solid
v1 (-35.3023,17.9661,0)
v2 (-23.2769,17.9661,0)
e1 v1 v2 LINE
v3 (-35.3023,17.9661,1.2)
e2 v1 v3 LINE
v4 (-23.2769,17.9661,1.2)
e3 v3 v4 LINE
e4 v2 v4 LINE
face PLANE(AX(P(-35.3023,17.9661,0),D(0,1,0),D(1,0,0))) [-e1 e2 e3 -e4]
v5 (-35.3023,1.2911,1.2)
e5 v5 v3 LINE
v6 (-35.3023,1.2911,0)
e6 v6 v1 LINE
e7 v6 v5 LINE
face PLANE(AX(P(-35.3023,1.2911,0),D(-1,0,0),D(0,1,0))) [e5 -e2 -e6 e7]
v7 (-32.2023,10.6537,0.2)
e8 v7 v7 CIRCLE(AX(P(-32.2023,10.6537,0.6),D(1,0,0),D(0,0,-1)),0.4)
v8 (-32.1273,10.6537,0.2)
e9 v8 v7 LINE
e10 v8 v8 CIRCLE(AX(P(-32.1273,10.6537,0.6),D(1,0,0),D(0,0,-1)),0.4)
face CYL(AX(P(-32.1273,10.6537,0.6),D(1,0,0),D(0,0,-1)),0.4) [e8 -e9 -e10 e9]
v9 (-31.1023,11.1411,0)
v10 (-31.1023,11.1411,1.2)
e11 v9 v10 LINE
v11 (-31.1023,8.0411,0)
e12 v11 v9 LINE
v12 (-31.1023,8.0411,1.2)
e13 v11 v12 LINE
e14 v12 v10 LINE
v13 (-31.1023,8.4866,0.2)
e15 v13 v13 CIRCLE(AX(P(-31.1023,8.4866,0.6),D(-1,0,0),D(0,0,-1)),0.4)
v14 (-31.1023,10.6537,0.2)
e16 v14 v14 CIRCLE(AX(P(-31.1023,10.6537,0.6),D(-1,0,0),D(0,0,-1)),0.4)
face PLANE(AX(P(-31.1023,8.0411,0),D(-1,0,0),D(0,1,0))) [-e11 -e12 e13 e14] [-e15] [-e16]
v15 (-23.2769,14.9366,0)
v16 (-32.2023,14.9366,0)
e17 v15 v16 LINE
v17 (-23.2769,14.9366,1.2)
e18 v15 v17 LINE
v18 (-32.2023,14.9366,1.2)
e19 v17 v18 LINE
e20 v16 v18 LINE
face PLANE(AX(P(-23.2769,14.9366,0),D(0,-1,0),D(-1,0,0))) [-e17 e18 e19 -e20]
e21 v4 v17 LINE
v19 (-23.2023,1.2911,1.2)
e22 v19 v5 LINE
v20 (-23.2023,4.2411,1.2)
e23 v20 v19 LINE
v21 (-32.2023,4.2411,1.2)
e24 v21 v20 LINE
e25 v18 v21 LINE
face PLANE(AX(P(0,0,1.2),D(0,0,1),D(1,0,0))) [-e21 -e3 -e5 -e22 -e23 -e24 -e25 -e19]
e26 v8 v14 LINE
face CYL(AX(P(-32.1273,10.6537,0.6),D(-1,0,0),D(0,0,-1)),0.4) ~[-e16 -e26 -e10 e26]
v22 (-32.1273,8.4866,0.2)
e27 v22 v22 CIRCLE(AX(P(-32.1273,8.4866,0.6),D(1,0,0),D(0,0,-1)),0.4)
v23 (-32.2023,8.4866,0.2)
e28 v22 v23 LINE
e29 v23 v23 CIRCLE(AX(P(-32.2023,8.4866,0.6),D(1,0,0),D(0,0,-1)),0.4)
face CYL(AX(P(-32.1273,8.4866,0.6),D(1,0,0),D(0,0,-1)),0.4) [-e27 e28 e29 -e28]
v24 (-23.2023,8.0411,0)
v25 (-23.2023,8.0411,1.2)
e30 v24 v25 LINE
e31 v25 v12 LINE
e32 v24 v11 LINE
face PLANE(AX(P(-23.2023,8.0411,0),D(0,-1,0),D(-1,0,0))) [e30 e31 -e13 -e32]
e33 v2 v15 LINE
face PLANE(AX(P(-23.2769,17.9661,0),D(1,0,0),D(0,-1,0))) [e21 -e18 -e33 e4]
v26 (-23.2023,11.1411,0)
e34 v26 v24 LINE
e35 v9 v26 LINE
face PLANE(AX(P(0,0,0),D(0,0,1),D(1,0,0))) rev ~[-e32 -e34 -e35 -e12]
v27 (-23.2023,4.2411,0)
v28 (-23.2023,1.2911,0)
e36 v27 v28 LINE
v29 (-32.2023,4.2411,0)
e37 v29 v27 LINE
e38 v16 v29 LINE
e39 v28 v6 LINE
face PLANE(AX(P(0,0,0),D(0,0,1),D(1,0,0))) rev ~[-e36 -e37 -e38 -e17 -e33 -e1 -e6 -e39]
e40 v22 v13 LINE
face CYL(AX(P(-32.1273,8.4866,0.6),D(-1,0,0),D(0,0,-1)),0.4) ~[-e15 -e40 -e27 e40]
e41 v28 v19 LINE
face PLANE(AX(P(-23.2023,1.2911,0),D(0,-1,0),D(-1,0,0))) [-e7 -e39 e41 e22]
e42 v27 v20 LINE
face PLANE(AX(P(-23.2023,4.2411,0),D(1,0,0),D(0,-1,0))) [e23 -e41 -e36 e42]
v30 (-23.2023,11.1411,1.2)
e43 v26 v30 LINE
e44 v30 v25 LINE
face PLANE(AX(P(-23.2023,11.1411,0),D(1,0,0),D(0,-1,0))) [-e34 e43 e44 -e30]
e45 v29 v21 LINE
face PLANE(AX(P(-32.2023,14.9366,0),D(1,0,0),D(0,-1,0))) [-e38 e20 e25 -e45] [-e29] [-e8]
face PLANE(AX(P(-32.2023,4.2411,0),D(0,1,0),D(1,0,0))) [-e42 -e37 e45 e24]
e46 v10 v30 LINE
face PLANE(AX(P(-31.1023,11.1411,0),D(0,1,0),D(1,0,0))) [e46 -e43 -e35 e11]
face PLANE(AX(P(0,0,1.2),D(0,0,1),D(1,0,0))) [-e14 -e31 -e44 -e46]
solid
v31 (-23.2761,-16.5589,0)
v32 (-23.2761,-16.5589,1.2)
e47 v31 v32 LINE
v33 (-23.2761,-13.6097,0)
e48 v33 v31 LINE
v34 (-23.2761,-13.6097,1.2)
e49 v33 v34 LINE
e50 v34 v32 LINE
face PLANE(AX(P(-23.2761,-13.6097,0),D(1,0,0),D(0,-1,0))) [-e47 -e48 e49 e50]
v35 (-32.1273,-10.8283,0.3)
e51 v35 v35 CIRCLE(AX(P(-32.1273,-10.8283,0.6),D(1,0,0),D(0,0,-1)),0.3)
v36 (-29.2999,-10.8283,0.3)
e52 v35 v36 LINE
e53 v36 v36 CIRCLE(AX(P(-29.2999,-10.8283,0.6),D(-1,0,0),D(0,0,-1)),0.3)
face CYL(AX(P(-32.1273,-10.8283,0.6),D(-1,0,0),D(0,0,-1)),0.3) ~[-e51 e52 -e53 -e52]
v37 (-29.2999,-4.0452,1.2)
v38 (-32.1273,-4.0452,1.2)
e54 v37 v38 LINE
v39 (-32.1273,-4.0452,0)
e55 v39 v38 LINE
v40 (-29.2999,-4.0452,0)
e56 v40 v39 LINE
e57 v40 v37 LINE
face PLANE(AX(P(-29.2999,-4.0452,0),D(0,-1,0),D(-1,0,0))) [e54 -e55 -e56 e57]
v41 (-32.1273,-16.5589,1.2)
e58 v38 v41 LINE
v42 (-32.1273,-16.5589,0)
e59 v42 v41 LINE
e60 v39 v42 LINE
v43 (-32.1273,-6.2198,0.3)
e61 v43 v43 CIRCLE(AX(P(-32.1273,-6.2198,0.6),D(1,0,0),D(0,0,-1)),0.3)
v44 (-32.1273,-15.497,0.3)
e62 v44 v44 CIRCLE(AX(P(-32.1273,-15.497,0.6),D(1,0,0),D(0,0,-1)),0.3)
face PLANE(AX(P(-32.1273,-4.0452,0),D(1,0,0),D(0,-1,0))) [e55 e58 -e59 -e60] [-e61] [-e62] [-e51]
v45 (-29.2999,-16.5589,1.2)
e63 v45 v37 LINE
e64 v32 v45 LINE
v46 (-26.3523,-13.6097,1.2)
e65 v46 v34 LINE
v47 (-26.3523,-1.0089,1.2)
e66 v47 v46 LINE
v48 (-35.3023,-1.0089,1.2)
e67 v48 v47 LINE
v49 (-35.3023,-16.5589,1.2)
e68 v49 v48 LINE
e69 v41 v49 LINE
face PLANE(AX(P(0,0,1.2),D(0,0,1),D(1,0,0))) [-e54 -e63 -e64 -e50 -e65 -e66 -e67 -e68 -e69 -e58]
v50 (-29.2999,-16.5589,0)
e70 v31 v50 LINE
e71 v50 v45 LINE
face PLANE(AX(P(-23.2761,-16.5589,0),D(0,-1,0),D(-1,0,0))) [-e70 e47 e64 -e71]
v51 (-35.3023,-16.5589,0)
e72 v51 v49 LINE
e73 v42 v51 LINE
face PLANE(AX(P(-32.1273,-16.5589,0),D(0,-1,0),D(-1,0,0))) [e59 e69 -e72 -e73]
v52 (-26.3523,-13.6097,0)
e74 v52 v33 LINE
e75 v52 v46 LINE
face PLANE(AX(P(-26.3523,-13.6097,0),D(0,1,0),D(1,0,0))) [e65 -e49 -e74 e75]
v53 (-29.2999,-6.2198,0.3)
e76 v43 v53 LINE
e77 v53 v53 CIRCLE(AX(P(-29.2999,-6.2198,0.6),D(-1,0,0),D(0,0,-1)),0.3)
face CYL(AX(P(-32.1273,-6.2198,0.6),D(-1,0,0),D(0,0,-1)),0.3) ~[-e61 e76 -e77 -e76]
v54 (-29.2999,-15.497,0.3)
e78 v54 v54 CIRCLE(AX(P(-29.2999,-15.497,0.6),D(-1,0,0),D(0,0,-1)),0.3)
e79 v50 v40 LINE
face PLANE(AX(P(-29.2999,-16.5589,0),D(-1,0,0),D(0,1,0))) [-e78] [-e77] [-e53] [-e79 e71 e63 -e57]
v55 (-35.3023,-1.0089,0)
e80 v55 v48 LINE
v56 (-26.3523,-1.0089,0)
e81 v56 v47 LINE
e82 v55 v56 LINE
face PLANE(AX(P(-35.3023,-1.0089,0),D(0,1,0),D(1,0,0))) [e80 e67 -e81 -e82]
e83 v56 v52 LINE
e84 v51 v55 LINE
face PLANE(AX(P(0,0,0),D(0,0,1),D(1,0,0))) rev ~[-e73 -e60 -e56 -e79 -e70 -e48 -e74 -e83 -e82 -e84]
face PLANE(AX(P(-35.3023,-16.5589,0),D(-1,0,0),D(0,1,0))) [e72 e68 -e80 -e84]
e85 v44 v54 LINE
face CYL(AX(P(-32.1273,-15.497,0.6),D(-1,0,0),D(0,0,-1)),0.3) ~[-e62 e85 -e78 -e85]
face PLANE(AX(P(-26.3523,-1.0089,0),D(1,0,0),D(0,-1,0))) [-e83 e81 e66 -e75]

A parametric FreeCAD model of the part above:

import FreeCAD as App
import Part
import Sketcher
from FreeCAD import Vector


def add_polygon(sketch, points):
    """Adds a closed chain of lines whose ends are joined by coincident constraints."""
    first, n = sketch.GeometryCount, len(points)
    for a, b in zip(points, points[1:] + points[:1]):
        sketch.addGeometry(Part.LineSegment(App.Vector(*a, 0), App.Vector(*b, 0)), False)
    for i in range(n):
        sketch.addConstraint(Sketcher.Constraint("Coincident", first + i, 2, first + (i + 1) % n, 1))

doc = App.newDocument("Part")
body = doc.addObject("PartDesign::Body", "Body")
body.AllowCompound = True

# Sketch on XY plane
sketch1 = doc.addObject("Sketcher::SketchObject", "Sketch")
body.addObject(sketch1)
sketch1.AttachmentSupport = (doc.XY_Plane, [""])
sketch1.MapMode = "FlatFace"
add_polygon(sketch1, [(-23.3, 14.9), (-23.3, 18), (-35.3, 18), (-35.3, 1.3), (-23.2, 1.3), (-23.2, 4.2), (-32.2, 4.2), (-32.2, 14.9)])  # lines 0-7
add_polygon(sketch1, [(-23.2, 8), (-23.2, 11.1), (-31.1, 11.1), (-31.1, 8)])  # lines 8-11
add_polygon(sketch1, [(-32.1, -4), (-29.3, -4), (-29.3, -16.6), (-23.3, -16.6), (-23.3, -13.6), (-26.4, -13.6), (-26.4, -1), (-35.3, -1), (-35.3, -16.6), (-32.1, -16.6)])  # lines 12-21
sketch1.addConstraint(Sketcher.Constraint("Vertical", 0))
sketch1.addConstraint(Sketcher.Constraint("Horizontal", 1))
sketch1.addConstraint(Sketcher.Constraint("Vertical", 2))
sketch1.addConstraint(Sketcher.Constraint("Horizontal", 3))
sketch1.addConstraint(Sketcher.Constraint("Vertical", 4))
sketch1.addConstraint(Sketcher.Constraint("Horizontal", 5))
sketch1.addConstraint(Sketcher.Constraint("Vertical", 6))
sketch1.addConstraint(Sketcher.Constraint("Horizontal", 7))
sketch1.addConstraint(Sketcher.Constraint("Vertical", 8))
sketch1.addConstraint(Sketcher.Constraint("Horizontal", 9))
sketch1.addConstraint(Sketcher.Constraint("Vertical", 10))
sketch1.addConstraint(Sketcher.Constraint("Horizontal", 11))
sketch1.addConstraint(Sketcher.Constraint("Horizontal", 12))
sketch1.addConstraint(Sketcher.Constraint("Vertical", 13))
sketch1.addConstraint(Sketcher.Constraint("Horizontal", 14))
sketch1.addConstraint(Sketcher.Constraint("Vertical", 15))
sketch1.addConstraint(Sketcher.Constraint("Horizontal", 16))
sketch1.addConstraint(Sketcher.Constraint("Vertical", 17))
sketch1.addConstraint(Sketcher.Constraint("Horizontal", 18))
sketch1.addConstraint(Sketcher.Constraint("Vertical", 19))
sketch1.addConstraint(Sketcher.Constraint("Horizontal", 20))
sketch1.addConstraint(Sketcher.Constraint("Vertical", 21))
sketch1.addConstraint(Sketcher.Constraint("Horizontal", 14, 2, 19, 2))
sketch1.addConstraint(Sketcher.Constraint("Vertical", 4, 2, 8, 2))
sketch1.addConstraint(Sketcher.Constraint("Vertical", 2, 2, 18, 2))
sketch1.addConstraint(Sketcher.Constraint("DistanceX", 5, 2, 5, 1, 9.0))
sketch1.addConstraint(Sketcher.Constraint("DistanceX", 3, 1, 3, 2, 12.1))
sketch1.addConstraint(Sketcher.Constraint("DistanceX", 9, 2, 9, 1, 7.9))
sketch1.addConstraint(Sketcher.Constraint("DistanceY", 8, 1, 8, 2, 3.1))
sketch1.addConstraint(Sketcher.Constraint("DistanceX", 18, 2, 18, 1, 8.95))
sketch1.addConstraint(Sketcher.Constraint("DistanceY", 4, 1, 4, 2, 2.95))
sketch1.addConstraint(Sketcher.Constraint("DistanceY", 19, 2, 19, 1, 15.55))
sketch1.addConstraint(Sketcher.Constraint("DistanceX", 12, 2, -1, 1, 29.3))
sketch1.addConstraint(Sketcher.Constraint("DistanceY", 4, 2, 8, 2, 6.9))
sketch1.addConstraint(Sketcher.Constraint("DistanceY", 13, 2, 5, 2, 20.8))
sketch1.addConstraint(Sketcher.Constraint("DistanceX", 20, 1, 20, 2, 3.175))
sketch1.addConstraint(Sketcher.Constraint("DistanceY", 2, 2, 2, 1, 16.675))
sketch1.addConstraint(Sketcher.Constraint("DistanceX", 1, 2, 1, 1, 12.0254))
sketch1.addConstraint(Sketcher.Constraint("DistanceX", 12, 1, 12, 2, 2.8274))
sketch1.addConstraint(Sketcher.Constraint("DistanceX", 14, 1, 14, 2, 6.0238))
sketch1.addConstraint(Sketcher.Constraint("DistanceY", 0, 1, 0, 2, 3.0295))
sketch1.addConstraint(Sketcher.Constraint("DistanceY", 13, 2, 13, 1, 12.5137))
sketch1.addConstraint(Sketcher.Constraint("DistanceY", 15, 1, 15, 2, 2.9492))
sketch1.addConstraint(Sketcher.Constraint("DistanceY", -1, 1, 0, 2, 17.966))
pad1 = doc.addObject("PartDesign::Pad", "Pad")
body.addObject(pad1)
pad1.Profile = sketch1
pad1.Length = 1.2

# Sketch on YZ plane
sketch2 = doc.addObject("Sketcher::SketchObject", "Sketch001")
body.addObject(sketch2)
sketch2.AttachmentSupport = (doc.YZ_Plane, [""])
sketch2.MapMode = "FlatFace"
sketch2.AttachmentOffset = App.Placement(Vector(0, 0, -32.1273), App.Rotation())
sketch2.addGeometry(Part.Circle(Vector(-15.5, 0.6, 0), Vector(0, 0, 1), 0.3), False)
sketch2.addGeometry(Part.Circle(Vector(-6.22, 0.6, 0), Vector(0, 0, 1), 0.3), False)
sketch2.addGeometry(Part.Circle(Vector(-10.83, 0.6, 0), Vector(0, 0, 1), 0.3), False)
sketch2.addGeometry(Part.Circle(Vector(10.65, 0.6, 0), Vector(0, 0, 1), 0.4), False)
sketch2.addGeometry(Part.Circle(Vector(8.49, 0.6, 0), Vector(0, 0, 1), 0.4), False)
sketch2.addConstraint(Sketcher.Constraint("Equal", 0, 1))
sketch2.addConstraint(Sketcher.Constraint("Equal", 1, 2))
sketch2.addConstraint(Sketcher.Constraint("Equal", 3, 4))
sketch2.addConstraint(Sketcher.Constraint("Horizontal", 0, 3, 1, 3))
sketch2.addConstraint(Sketcher.Constraint("Horizontal", 1, 3, 2, 3))
sketch2.addConstraint(Sketcher.Constraint("Horizontal", 2, 3, 3, 3))
sketch2.addConstraint(Sketcher.Constraint("Horizontal", 3, 3, 4, 3))
sketch2.addConstraint(Sketcher.Constraint("Diameter", 0, 0.6))
sketch2.addConstraint(Sketcher.Constraint("Diameter", 3, 0.8))
sketch2.addConstraint(Sketcher.Constraint("DistanceY", -1, 1, 0, 3, 0.6))
sketch2.addConstraint(Sketcher.Constraint("DistanceX", 0, 3, -1, 1, 15.497))
sketch2.addConstraint(Sketcher.Constraint("DistanceX", 2, 3, 3, 3, 21.482))
sketch2.addConstraint(Sketcher.Constraint("DistanceX", 4, 3, 3, 3, 2.167))
sketch2.addConstraint(Sketcher.Constraint("DistanceX", 1, 3, -1, 1, 6.2198))
sketch2.addConstraint(Sketcher.Constraint("DistanceX", 2, 3, -1, 1, 10.8283))
pad2 = doc.addObject("PartDesign::Pad", "Pad001")
body.addObject(pad2)
pad2.Profile = sketch2
pad2.Type = "TwoLengths"
pad2.Length = 4
pad2.Length2 = 2

doc.recompute()
